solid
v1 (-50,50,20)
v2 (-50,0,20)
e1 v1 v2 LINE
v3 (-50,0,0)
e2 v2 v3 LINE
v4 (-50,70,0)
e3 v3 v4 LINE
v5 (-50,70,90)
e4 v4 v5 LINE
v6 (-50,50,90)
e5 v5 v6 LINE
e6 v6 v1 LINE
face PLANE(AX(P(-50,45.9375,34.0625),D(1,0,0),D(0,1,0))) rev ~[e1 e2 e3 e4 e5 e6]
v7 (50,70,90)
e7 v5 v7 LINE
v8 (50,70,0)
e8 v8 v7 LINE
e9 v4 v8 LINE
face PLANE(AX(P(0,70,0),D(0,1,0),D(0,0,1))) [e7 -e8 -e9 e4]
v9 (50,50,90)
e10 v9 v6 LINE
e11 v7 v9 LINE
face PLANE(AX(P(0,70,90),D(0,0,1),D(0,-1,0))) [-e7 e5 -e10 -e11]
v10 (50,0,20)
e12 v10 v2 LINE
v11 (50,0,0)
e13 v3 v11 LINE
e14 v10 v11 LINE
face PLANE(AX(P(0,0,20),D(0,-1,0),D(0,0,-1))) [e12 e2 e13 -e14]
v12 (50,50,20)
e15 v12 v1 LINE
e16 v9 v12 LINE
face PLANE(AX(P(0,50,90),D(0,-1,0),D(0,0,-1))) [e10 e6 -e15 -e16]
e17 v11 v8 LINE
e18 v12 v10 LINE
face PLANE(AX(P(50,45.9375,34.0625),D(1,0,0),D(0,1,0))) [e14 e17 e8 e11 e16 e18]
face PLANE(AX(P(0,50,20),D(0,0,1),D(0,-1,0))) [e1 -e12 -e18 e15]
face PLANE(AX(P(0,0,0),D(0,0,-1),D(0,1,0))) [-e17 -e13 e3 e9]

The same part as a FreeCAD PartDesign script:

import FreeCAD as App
import Part
import Sketcher

V = App.Vector

doc = App.newDocument("Part")
body = doc.addObject("PartDesign::Body", "Body")

sketch1 = body.newObject("Sketcher::SketchObject", "Sketch")
sketch1.AttachmentSupport = (doc.getObject("YZ_Plane"), [""])
sketch1.MapMode = "FlatFace"
sketch1.addGeometry(Part.LineSegment(V(0, 20, 0), V(0, 0, 0)), False)
sketch1.addGeometry(Part.LineSegment(V(0, 0, 0), V(70, 0, 0)), False)
sketch1.addGeometry(Part.LineSegment(V(70, 0, 0), V(70, 90, 0)), False)
sketch1.addGeometry(Part.LineSegment(V(70, 90, 0), V(50, 90, 0)), False)
sketch1.addGeometry(Part.LineSegment(V(50, 90, 0), V(50, 20, 0)), False)
sketch1.addGeometry(Part.LineSegment(V(50, 20, 0), V(0, 20, 0)), False)
sketch1.addConstraint(Sketcher.Constraint("Coincident", 0, 2, 1, 1))
sketch1.addConstraint(Sketcher.Constraint("Coincident", 1, 2, 2, 1))
sketch1.addConstraint(Sketcher.Constraint("Coincident", 2, 2, 3, 1))
sketch1.addConstraint(Sketcher.Constraint("Coincident", 3, 2, 4, 1))
sketch1.addConstraint(Sketcher.Constraint("Coincident", 4, 2, 5, 1))
sketch1.addConstraint(Sketcher.Constraint("Coincident", 5, 2, 0, 1))
sketch1.addConstraint(Sketcher.Constraint("Vertical", 0))
sketch1.addConstraint(Sketcher.Constraint("Horizontal", 1))
sketch1.addConstraint(Sketcher.Constraint("Vertical", 2))
sketch1.addConstraint(Sketcher.Constraint("Horizontal", 3))
sketch1.addConstraint(Sketcher.Constraint("Vertical", 4))
sketch1.addConstraint(Sketcher.Constraint("Horizontal", 5))
sketch1.addConstraint(Sketcher.Constraint("Coincident", 0, 2, -1, 1))
sketch1.addConstraint(Sketcher.Constraint("Equal", 3, 0))
sketch1.addConstraint(Sketcher.Constraint("Equal", 1, 4))
sketch1.addConstraint(Sketcher.Constraint("DistanceX", 1, 1, 1, 2, 70.0))
sketch1.addConstraint(Sketcher.Constraint("DistanceX", 3, 2, 3, 1, 20.0))
pad1 = body.newObject("PartDesign::Pad", "Pad")
pad1.Profile = sketch1
pad1.Type = "TwoLengths"
pad1.Length = 50
pad1.Length2 = 50

doc.recompute()
